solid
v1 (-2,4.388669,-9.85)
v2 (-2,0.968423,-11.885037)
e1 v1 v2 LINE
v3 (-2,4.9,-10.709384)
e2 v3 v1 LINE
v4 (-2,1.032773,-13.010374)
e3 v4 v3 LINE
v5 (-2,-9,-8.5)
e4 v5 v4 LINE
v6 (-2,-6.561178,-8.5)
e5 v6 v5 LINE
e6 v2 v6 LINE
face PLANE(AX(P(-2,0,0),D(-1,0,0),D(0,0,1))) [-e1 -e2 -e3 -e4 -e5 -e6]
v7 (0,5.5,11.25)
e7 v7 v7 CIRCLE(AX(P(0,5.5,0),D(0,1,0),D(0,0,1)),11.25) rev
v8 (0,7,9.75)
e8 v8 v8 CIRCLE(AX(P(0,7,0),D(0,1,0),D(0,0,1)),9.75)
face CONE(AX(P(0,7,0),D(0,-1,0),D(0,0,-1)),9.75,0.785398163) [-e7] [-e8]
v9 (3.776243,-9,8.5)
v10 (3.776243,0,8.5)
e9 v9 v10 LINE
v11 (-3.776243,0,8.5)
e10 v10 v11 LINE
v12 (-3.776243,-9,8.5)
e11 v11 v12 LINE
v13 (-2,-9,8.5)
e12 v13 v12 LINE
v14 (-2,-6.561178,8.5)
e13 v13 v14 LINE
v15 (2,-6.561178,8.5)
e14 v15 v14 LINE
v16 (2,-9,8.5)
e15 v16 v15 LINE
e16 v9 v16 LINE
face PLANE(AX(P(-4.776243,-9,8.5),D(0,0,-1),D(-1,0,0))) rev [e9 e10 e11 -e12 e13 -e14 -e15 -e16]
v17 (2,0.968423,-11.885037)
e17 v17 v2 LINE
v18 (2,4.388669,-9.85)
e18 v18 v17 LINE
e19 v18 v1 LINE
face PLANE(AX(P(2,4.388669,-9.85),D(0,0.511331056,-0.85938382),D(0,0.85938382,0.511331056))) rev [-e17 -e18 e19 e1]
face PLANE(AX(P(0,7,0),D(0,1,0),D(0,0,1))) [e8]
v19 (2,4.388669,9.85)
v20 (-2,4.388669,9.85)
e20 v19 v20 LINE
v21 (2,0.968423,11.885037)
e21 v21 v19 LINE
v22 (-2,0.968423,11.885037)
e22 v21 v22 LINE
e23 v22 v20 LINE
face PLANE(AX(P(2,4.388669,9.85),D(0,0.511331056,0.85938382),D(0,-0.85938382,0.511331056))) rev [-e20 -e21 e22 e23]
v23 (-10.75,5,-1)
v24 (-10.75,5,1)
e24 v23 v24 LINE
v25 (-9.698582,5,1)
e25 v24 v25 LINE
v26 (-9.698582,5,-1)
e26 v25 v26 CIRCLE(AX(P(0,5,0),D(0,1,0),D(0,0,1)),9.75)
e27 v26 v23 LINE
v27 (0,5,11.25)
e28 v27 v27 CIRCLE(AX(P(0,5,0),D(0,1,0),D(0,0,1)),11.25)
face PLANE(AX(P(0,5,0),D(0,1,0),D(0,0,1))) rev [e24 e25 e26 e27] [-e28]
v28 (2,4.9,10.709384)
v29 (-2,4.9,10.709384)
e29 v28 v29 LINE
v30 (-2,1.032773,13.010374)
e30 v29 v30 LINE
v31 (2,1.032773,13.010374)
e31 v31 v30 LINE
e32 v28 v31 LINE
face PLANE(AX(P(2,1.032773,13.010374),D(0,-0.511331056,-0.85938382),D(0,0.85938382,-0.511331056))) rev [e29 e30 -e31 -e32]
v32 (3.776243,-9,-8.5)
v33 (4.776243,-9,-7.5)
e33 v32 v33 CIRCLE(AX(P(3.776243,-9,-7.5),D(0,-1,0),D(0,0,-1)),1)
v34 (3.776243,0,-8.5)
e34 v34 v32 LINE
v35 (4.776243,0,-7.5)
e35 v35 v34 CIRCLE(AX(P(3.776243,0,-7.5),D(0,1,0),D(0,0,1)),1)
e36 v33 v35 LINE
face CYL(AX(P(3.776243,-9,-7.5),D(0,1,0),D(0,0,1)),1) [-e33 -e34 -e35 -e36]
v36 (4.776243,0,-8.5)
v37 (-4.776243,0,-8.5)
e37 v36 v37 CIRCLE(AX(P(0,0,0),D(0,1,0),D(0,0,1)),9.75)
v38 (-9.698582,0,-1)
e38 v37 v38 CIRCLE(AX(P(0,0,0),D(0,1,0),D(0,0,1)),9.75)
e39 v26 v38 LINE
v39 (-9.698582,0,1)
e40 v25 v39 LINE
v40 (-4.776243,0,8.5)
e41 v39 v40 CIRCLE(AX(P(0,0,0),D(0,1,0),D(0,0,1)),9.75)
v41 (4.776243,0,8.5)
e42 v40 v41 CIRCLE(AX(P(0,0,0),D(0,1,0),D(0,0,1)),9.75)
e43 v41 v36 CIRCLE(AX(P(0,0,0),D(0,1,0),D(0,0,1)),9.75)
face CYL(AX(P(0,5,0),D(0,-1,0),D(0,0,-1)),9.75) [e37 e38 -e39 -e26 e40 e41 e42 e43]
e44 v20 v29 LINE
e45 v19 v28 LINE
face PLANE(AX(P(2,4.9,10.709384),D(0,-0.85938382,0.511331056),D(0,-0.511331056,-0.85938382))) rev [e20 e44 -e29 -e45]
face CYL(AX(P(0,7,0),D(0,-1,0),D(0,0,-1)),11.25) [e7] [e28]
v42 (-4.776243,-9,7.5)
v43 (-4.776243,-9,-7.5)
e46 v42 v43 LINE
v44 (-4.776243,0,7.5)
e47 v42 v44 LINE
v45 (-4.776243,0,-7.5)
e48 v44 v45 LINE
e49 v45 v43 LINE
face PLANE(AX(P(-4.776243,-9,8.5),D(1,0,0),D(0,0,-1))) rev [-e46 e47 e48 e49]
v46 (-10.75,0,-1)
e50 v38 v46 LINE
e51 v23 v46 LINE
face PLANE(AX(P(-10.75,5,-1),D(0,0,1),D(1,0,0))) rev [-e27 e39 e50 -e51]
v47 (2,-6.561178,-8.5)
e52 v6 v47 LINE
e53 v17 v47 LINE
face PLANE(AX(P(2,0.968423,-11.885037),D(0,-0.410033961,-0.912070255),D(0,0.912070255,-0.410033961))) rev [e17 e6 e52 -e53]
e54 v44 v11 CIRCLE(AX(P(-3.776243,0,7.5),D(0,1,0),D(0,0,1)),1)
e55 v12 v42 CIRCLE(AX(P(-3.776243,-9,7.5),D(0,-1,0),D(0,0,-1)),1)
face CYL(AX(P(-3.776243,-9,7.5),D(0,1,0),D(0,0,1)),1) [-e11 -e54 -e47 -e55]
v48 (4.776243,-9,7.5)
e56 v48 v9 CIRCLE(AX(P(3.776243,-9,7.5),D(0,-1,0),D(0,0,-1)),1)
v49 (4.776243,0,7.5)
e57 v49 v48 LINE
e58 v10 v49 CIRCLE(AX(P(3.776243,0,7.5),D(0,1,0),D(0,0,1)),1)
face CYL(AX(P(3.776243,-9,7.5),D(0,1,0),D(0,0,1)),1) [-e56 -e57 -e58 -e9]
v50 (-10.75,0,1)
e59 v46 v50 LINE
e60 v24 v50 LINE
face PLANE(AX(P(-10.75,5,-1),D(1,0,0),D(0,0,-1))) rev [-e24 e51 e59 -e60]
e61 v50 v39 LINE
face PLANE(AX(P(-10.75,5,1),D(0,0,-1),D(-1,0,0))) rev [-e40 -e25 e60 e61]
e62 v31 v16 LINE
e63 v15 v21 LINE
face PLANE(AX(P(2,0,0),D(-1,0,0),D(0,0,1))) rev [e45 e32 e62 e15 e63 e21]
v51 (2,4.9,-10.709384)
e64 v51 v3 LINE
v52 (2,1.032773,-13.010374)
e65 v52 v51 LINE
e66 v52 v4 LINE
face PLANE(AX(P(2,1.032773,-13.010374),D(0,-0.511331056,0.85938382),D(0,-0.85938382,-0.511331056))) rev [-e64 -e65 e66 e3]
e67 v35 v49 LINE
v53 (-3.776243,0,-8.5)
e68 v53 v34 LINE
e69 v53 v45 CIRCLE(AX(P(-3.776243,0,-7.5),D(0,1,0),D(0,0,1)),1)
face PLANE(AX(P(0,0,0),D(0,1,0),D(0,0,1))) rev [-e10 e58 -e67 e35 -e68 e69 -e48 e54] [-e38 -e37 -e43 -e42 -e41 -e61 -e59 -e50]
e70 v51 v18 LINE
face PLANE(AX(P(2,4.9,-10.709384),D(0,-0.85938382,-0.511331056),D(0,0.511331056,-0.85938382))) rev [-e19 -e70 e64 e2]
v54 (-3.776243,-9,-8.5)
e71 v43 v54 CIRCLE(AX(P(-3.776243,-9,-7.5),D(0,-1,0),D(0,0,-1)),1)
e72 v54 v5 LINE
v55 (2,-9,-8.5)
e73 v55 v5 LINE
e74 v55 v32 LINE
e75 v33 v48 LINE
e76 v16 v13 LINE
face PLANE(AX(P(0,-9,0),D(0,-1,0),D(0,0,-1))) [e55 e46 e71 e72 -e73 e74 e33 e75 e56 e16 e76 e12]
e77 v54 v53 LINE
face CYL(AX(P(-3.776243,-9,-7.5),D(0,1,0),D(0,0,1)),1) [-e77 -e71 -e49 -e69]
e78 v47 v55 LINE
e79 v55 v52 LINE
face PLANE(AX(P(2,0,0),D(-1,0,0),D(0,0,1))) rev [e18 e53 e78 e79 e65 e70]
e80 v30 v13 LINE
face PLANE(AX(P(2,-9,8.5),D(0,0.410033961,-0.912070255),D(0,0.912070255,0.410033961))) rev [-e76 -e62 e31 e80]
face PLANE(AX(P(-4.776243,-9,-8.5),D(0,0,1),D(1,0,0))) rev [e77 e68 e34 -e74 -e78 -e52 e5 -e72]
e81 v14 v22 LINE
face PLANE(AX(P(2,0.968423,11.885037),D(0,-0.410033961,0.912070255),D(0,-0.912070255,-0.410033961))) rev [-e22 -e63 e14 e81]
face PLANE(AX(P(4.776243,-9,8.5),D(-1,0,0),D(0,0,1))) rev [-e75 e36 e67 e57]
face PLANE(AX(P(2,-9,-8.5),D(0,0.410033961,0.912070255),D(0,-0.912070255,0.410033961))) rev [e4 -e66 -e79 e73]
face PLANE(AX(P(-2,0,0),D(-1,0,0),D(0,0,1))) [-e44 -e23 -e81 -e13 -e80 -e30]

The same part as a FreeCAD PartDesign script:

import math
import FreeCAD as App
import Part
import Sketcher
from FreeCAD import Vector


def edges_at(feature, points):
    """Names of the edges that pass closest to the given points."""
    edges = feature.Shape.Edges
    near = lambda p: min(range(len(edges)), key=lambda i: edges[i].distToShape(Part.Vertex(*p))[0])
    return sorted({f"Edge{near(p) + 1}" for p in points})


def add_polygon(sketch, points):
    """Adds a closed chain of lines whose ends are joined by coincident constraints."""
    first, n = sketch.GeometryCount, len(points)
    for a, b in zip(points, points[1:] + points[:1]):
        sketch.addGeometry(Part.LineSegment(App.Vector(*a, 0), App.Vector(*b, 0)), False)
    for i in range(n):
        sketch.addConstraint(Sketcher.Constraint("Coincident", first + i, 2, first + (i + 1) % n, 1))

doc = App.newDocument("Part")
body = doc.addObject("PartDesign::Body", "Body")

# Sketch on XZ plane
sketch1 = doc.addObject("Sketcher::SketchObject", "Sketch")
body.addObject(sketch1)
sketch1.AttachmentSupport = (doc.XZ_Plane, [""])
sketch1.MapMode = "FlatFace"
sketch1.addGeometry(Part.LineSegment(Vector(-9.7, -1, 0), Vector(-10.8, -1, 0)), False)
sketch1.addGeometry(Part.LineSegment(Vector(-10.8, -1, 0), Vector(-10.8, 1, 0)), False)
sketch1.addGeometry(Part.LineSegment(Vector(-10.8, 1, 0), Vector(-9.7, 1, 0)), False)
sketch1.addGeometry(Part.ArcOfCircle(Part.Circle(Vector(0, 0, 0), Vector(0, 0, 1), 9.8), math.radians(-174), math.radians(174)), False)
sketch1.addConstraint(Sketcher.Constraint("Coincident", 0, 2, 1, 1))
sketch1.addConstraint(Sketcher.Constraint("Coincident", 1, 2, 2, 1))
sketch1.addConstraint(Sketcher.Constraint("Coincident", 2, 2, 3, 2))
sketch1.addConstraint(Sketcher.Constraint("Coincident", 3, 1, 0, 1))
sketch1.addConstraint(Sketcher.Constraint("Horizontal", 0))
sketch1.addConstraint(Sketcher.Constraint("Vertical", 1))
sketch1.addConstraint(Sketcher.Constraint("Horizontal", 2))
sketch1.addConstraint(Sketcher.Constraint("Coincident", 3, 3, -1, 1))
sketch1.addConstraint(Sketcher.Constraint("Vertical", 2, 2, 3, 1))
sketch1.addConstraint(Sketcher.Constraint("DistanceY", 1, 1, 1, 2, 2.0))
sketch1.addConstraint(Sketcher.Constraint("Radius", 3, 9.75))
sketch1.addConstraint(Sketcher.Constraint("DistanceX", 0, 2, -1, 1, 10.75))
pad1 = doc.addObject("PartDesign::Pad", "Pad")
body.addObject(pad1)
pad1.Profile = sketch1
pad1.Length = 5
pad1.Reversed = True

# Sketch on XZ plane
sketch2 = doc.addObject("Sketcher::SketchObject", "Sketch001")
body.addObject(sketch2)
sketch2.AttachmentSupport = (doc.XZ_Plane, [""])
sketch2.MapMode = "FlatFace"
sketch2.AttachmentOffset = App.Placement(Vector(0, 0, -5), App.Rotation())
sketch2.addGeometry(Part.Circle(Vector(0, 0, 0), Vector(0, 0, 1), 11), False)
sketch2.addConstraint(Sketcher.Constraint("Coincident", 0, 3, -1, 1))
sketch2.addConstraint(Sketcher.Constraint("Diameter", 0, 22.5))
pad2 = doc.addObject("PartDesign::Pad", "Pad001")
body.addObject(pad2)
pad2.Profile = sketch2
pad2.Length = 2
pad2.Reversed = True
doc.recompute()

chamfer = doc.addObject("PartDesign::Chamfer", "Chamfer")
body.addObject(chamfer)
chamfer.Base = (pad2, edges_at(pad2, [(-11.25, 7, 0)]))
chamfer.Size = 1.5

# Sketch on XZ plane
sketch3 = doc.addObject("Sketcher::SketchObject", "Sketch002")
body.addObject(sketch3)
sketch3.AttachmentSupport = (doc.XZ_Plane, [""])
sketch3.MapMode = "FlatFace"
add_polygon(sketch3, [(-5, 8), (-5, -8), (5, -8), (5, 8)])  # lines 0-3
sketch3.addConstraint(Sketcher.Constraint("Vertical", 0))
sketch3.addConstraint(Sketcher.Constraint("Horizontal", 1))
sketch3.addConstraint(Sketcher.Constraint("Vertical", 2))
sketch3.addConstraint(Sketcher.Constraint("Horizontal", 3))
sketch3.addConstraint(Sketcher.Constraint("Symmetric", 0, 2, 2, 2, -1, 1))
sketch3.addConstraint(Sketcher.Constraint("DistanceY", 0, 2, 0, 1, 17.0))
sketch3.addConstraint(Sketcher.Constraint("DistanceX", 1, 1, 1, 2, 9.552487))
pad3 = doc.addObject("PartDesign::Pad", "Pad002")
body.addObject(pad3)
pad3.Profile = sketch3
pad3.Length = 9
doc.recompute()

fillet = doc.addObject("PartDesign::Fillet", "Fillet")
body.addObject(fillet)
fillet.Base = (pad3, edges_at(pad3, [
    (-4.776, -4.5, 8.5),
    (-4.776, -4.5, -8.5),
    (4.776, -4.5, -8.5),
    (4.776, -4.5, 8.5),
]))
fillet.Radius = 1

# Sketch on YZ plane
sketch4 = doc.addObject("Sketcher::SketchObject", "Sketch003")
body.addObject(sketch4)
sketch4.AttachmentSupport = (doc.YZ_Plane, [""])
sketch4.MapMode = "FlatFace"
add_polygon(sketch4, [(1, 13), (-9, 8.5), (-8.6, 7.6), (1, 11.9), (4.4, 9.8), (4.9, 10.7)])  # lines 0-5
add_polygon(sketch4, [(1, -11.9), (-8.6, -7.6), (-9, -8.5), (1, -13), (4.9, -10.7), (4.4, -9.8)])  # lines 6-11
sketch4.addConstraint(Sketcher.Constraint("Symmetric", 1, 2, 6, 2, -1))
sketch4.addConstraint(Sketcher.Constraint("Symmetric", 0, 2, 7, 2, -1))
sketch4.addConstraint(Sketcher.Constraint("Symmetric", 5, 2, 8, 2, -1))
sketch4.addConstraint(Sketcher.Constraint("Symmetric", 4, 2, 9, 2, -1))
sketch4.addConstraint(Sketcher.Constraint("Symmetric", 3, 2, 10, 2, -1))
sketch4.addConstraint(Sketcher.Constraint("Symmetric", 2, 2, 11, 2, -1))
sketch4.addConstraint(Sketcher.Constraint("Perpendicular", 0, 1))
sketch4.addConstraint(Sketcher.Constraint("Perpendicular", 1, 2))
sketch4.addConstraint(Sketcher.Constraint("Perpendicular", 3, 4))
sketch4.addConstraint(Sketcher.Constraint("Perpendicular", 4, 5))
sketch4.addConstraint(Sketcher.Constraint("Equal", 1, 4))
sketch4.addConstraint(Sketcher.Constraint("Distance", 0, 11.0))
sketch4.addConstraint(Sketcher.Constraint("Distance", 1, 1.0))
sketch4.addConstraint(Sketcher.Constraint("DistanceX", 0, 2, -1, 1, 9.0))
sketch4.addConstraint(Sketcher.Constraint("DistanceY", 7, 2, 0, 2, 17.0))
sketch4.addConstraint(Sketcher.Constraint("Distance", 5, 4.5))
sketch4.addConstraint(Sketcher.Constraint("DistanceX", -1, 1, 4, 2, 4.9))
sketch4.addConstraint(Sketcher.Constraint("DistanceY", 10, 2, 3, 2, 19.7))
pad4 = doc.addObject("PartDesign::Pad", "Pad003")
body.addObject(pad4)
pad4.Profile = sketch4
pad4.Length = 4
pad4.Midplane = True

doc.recompute()
